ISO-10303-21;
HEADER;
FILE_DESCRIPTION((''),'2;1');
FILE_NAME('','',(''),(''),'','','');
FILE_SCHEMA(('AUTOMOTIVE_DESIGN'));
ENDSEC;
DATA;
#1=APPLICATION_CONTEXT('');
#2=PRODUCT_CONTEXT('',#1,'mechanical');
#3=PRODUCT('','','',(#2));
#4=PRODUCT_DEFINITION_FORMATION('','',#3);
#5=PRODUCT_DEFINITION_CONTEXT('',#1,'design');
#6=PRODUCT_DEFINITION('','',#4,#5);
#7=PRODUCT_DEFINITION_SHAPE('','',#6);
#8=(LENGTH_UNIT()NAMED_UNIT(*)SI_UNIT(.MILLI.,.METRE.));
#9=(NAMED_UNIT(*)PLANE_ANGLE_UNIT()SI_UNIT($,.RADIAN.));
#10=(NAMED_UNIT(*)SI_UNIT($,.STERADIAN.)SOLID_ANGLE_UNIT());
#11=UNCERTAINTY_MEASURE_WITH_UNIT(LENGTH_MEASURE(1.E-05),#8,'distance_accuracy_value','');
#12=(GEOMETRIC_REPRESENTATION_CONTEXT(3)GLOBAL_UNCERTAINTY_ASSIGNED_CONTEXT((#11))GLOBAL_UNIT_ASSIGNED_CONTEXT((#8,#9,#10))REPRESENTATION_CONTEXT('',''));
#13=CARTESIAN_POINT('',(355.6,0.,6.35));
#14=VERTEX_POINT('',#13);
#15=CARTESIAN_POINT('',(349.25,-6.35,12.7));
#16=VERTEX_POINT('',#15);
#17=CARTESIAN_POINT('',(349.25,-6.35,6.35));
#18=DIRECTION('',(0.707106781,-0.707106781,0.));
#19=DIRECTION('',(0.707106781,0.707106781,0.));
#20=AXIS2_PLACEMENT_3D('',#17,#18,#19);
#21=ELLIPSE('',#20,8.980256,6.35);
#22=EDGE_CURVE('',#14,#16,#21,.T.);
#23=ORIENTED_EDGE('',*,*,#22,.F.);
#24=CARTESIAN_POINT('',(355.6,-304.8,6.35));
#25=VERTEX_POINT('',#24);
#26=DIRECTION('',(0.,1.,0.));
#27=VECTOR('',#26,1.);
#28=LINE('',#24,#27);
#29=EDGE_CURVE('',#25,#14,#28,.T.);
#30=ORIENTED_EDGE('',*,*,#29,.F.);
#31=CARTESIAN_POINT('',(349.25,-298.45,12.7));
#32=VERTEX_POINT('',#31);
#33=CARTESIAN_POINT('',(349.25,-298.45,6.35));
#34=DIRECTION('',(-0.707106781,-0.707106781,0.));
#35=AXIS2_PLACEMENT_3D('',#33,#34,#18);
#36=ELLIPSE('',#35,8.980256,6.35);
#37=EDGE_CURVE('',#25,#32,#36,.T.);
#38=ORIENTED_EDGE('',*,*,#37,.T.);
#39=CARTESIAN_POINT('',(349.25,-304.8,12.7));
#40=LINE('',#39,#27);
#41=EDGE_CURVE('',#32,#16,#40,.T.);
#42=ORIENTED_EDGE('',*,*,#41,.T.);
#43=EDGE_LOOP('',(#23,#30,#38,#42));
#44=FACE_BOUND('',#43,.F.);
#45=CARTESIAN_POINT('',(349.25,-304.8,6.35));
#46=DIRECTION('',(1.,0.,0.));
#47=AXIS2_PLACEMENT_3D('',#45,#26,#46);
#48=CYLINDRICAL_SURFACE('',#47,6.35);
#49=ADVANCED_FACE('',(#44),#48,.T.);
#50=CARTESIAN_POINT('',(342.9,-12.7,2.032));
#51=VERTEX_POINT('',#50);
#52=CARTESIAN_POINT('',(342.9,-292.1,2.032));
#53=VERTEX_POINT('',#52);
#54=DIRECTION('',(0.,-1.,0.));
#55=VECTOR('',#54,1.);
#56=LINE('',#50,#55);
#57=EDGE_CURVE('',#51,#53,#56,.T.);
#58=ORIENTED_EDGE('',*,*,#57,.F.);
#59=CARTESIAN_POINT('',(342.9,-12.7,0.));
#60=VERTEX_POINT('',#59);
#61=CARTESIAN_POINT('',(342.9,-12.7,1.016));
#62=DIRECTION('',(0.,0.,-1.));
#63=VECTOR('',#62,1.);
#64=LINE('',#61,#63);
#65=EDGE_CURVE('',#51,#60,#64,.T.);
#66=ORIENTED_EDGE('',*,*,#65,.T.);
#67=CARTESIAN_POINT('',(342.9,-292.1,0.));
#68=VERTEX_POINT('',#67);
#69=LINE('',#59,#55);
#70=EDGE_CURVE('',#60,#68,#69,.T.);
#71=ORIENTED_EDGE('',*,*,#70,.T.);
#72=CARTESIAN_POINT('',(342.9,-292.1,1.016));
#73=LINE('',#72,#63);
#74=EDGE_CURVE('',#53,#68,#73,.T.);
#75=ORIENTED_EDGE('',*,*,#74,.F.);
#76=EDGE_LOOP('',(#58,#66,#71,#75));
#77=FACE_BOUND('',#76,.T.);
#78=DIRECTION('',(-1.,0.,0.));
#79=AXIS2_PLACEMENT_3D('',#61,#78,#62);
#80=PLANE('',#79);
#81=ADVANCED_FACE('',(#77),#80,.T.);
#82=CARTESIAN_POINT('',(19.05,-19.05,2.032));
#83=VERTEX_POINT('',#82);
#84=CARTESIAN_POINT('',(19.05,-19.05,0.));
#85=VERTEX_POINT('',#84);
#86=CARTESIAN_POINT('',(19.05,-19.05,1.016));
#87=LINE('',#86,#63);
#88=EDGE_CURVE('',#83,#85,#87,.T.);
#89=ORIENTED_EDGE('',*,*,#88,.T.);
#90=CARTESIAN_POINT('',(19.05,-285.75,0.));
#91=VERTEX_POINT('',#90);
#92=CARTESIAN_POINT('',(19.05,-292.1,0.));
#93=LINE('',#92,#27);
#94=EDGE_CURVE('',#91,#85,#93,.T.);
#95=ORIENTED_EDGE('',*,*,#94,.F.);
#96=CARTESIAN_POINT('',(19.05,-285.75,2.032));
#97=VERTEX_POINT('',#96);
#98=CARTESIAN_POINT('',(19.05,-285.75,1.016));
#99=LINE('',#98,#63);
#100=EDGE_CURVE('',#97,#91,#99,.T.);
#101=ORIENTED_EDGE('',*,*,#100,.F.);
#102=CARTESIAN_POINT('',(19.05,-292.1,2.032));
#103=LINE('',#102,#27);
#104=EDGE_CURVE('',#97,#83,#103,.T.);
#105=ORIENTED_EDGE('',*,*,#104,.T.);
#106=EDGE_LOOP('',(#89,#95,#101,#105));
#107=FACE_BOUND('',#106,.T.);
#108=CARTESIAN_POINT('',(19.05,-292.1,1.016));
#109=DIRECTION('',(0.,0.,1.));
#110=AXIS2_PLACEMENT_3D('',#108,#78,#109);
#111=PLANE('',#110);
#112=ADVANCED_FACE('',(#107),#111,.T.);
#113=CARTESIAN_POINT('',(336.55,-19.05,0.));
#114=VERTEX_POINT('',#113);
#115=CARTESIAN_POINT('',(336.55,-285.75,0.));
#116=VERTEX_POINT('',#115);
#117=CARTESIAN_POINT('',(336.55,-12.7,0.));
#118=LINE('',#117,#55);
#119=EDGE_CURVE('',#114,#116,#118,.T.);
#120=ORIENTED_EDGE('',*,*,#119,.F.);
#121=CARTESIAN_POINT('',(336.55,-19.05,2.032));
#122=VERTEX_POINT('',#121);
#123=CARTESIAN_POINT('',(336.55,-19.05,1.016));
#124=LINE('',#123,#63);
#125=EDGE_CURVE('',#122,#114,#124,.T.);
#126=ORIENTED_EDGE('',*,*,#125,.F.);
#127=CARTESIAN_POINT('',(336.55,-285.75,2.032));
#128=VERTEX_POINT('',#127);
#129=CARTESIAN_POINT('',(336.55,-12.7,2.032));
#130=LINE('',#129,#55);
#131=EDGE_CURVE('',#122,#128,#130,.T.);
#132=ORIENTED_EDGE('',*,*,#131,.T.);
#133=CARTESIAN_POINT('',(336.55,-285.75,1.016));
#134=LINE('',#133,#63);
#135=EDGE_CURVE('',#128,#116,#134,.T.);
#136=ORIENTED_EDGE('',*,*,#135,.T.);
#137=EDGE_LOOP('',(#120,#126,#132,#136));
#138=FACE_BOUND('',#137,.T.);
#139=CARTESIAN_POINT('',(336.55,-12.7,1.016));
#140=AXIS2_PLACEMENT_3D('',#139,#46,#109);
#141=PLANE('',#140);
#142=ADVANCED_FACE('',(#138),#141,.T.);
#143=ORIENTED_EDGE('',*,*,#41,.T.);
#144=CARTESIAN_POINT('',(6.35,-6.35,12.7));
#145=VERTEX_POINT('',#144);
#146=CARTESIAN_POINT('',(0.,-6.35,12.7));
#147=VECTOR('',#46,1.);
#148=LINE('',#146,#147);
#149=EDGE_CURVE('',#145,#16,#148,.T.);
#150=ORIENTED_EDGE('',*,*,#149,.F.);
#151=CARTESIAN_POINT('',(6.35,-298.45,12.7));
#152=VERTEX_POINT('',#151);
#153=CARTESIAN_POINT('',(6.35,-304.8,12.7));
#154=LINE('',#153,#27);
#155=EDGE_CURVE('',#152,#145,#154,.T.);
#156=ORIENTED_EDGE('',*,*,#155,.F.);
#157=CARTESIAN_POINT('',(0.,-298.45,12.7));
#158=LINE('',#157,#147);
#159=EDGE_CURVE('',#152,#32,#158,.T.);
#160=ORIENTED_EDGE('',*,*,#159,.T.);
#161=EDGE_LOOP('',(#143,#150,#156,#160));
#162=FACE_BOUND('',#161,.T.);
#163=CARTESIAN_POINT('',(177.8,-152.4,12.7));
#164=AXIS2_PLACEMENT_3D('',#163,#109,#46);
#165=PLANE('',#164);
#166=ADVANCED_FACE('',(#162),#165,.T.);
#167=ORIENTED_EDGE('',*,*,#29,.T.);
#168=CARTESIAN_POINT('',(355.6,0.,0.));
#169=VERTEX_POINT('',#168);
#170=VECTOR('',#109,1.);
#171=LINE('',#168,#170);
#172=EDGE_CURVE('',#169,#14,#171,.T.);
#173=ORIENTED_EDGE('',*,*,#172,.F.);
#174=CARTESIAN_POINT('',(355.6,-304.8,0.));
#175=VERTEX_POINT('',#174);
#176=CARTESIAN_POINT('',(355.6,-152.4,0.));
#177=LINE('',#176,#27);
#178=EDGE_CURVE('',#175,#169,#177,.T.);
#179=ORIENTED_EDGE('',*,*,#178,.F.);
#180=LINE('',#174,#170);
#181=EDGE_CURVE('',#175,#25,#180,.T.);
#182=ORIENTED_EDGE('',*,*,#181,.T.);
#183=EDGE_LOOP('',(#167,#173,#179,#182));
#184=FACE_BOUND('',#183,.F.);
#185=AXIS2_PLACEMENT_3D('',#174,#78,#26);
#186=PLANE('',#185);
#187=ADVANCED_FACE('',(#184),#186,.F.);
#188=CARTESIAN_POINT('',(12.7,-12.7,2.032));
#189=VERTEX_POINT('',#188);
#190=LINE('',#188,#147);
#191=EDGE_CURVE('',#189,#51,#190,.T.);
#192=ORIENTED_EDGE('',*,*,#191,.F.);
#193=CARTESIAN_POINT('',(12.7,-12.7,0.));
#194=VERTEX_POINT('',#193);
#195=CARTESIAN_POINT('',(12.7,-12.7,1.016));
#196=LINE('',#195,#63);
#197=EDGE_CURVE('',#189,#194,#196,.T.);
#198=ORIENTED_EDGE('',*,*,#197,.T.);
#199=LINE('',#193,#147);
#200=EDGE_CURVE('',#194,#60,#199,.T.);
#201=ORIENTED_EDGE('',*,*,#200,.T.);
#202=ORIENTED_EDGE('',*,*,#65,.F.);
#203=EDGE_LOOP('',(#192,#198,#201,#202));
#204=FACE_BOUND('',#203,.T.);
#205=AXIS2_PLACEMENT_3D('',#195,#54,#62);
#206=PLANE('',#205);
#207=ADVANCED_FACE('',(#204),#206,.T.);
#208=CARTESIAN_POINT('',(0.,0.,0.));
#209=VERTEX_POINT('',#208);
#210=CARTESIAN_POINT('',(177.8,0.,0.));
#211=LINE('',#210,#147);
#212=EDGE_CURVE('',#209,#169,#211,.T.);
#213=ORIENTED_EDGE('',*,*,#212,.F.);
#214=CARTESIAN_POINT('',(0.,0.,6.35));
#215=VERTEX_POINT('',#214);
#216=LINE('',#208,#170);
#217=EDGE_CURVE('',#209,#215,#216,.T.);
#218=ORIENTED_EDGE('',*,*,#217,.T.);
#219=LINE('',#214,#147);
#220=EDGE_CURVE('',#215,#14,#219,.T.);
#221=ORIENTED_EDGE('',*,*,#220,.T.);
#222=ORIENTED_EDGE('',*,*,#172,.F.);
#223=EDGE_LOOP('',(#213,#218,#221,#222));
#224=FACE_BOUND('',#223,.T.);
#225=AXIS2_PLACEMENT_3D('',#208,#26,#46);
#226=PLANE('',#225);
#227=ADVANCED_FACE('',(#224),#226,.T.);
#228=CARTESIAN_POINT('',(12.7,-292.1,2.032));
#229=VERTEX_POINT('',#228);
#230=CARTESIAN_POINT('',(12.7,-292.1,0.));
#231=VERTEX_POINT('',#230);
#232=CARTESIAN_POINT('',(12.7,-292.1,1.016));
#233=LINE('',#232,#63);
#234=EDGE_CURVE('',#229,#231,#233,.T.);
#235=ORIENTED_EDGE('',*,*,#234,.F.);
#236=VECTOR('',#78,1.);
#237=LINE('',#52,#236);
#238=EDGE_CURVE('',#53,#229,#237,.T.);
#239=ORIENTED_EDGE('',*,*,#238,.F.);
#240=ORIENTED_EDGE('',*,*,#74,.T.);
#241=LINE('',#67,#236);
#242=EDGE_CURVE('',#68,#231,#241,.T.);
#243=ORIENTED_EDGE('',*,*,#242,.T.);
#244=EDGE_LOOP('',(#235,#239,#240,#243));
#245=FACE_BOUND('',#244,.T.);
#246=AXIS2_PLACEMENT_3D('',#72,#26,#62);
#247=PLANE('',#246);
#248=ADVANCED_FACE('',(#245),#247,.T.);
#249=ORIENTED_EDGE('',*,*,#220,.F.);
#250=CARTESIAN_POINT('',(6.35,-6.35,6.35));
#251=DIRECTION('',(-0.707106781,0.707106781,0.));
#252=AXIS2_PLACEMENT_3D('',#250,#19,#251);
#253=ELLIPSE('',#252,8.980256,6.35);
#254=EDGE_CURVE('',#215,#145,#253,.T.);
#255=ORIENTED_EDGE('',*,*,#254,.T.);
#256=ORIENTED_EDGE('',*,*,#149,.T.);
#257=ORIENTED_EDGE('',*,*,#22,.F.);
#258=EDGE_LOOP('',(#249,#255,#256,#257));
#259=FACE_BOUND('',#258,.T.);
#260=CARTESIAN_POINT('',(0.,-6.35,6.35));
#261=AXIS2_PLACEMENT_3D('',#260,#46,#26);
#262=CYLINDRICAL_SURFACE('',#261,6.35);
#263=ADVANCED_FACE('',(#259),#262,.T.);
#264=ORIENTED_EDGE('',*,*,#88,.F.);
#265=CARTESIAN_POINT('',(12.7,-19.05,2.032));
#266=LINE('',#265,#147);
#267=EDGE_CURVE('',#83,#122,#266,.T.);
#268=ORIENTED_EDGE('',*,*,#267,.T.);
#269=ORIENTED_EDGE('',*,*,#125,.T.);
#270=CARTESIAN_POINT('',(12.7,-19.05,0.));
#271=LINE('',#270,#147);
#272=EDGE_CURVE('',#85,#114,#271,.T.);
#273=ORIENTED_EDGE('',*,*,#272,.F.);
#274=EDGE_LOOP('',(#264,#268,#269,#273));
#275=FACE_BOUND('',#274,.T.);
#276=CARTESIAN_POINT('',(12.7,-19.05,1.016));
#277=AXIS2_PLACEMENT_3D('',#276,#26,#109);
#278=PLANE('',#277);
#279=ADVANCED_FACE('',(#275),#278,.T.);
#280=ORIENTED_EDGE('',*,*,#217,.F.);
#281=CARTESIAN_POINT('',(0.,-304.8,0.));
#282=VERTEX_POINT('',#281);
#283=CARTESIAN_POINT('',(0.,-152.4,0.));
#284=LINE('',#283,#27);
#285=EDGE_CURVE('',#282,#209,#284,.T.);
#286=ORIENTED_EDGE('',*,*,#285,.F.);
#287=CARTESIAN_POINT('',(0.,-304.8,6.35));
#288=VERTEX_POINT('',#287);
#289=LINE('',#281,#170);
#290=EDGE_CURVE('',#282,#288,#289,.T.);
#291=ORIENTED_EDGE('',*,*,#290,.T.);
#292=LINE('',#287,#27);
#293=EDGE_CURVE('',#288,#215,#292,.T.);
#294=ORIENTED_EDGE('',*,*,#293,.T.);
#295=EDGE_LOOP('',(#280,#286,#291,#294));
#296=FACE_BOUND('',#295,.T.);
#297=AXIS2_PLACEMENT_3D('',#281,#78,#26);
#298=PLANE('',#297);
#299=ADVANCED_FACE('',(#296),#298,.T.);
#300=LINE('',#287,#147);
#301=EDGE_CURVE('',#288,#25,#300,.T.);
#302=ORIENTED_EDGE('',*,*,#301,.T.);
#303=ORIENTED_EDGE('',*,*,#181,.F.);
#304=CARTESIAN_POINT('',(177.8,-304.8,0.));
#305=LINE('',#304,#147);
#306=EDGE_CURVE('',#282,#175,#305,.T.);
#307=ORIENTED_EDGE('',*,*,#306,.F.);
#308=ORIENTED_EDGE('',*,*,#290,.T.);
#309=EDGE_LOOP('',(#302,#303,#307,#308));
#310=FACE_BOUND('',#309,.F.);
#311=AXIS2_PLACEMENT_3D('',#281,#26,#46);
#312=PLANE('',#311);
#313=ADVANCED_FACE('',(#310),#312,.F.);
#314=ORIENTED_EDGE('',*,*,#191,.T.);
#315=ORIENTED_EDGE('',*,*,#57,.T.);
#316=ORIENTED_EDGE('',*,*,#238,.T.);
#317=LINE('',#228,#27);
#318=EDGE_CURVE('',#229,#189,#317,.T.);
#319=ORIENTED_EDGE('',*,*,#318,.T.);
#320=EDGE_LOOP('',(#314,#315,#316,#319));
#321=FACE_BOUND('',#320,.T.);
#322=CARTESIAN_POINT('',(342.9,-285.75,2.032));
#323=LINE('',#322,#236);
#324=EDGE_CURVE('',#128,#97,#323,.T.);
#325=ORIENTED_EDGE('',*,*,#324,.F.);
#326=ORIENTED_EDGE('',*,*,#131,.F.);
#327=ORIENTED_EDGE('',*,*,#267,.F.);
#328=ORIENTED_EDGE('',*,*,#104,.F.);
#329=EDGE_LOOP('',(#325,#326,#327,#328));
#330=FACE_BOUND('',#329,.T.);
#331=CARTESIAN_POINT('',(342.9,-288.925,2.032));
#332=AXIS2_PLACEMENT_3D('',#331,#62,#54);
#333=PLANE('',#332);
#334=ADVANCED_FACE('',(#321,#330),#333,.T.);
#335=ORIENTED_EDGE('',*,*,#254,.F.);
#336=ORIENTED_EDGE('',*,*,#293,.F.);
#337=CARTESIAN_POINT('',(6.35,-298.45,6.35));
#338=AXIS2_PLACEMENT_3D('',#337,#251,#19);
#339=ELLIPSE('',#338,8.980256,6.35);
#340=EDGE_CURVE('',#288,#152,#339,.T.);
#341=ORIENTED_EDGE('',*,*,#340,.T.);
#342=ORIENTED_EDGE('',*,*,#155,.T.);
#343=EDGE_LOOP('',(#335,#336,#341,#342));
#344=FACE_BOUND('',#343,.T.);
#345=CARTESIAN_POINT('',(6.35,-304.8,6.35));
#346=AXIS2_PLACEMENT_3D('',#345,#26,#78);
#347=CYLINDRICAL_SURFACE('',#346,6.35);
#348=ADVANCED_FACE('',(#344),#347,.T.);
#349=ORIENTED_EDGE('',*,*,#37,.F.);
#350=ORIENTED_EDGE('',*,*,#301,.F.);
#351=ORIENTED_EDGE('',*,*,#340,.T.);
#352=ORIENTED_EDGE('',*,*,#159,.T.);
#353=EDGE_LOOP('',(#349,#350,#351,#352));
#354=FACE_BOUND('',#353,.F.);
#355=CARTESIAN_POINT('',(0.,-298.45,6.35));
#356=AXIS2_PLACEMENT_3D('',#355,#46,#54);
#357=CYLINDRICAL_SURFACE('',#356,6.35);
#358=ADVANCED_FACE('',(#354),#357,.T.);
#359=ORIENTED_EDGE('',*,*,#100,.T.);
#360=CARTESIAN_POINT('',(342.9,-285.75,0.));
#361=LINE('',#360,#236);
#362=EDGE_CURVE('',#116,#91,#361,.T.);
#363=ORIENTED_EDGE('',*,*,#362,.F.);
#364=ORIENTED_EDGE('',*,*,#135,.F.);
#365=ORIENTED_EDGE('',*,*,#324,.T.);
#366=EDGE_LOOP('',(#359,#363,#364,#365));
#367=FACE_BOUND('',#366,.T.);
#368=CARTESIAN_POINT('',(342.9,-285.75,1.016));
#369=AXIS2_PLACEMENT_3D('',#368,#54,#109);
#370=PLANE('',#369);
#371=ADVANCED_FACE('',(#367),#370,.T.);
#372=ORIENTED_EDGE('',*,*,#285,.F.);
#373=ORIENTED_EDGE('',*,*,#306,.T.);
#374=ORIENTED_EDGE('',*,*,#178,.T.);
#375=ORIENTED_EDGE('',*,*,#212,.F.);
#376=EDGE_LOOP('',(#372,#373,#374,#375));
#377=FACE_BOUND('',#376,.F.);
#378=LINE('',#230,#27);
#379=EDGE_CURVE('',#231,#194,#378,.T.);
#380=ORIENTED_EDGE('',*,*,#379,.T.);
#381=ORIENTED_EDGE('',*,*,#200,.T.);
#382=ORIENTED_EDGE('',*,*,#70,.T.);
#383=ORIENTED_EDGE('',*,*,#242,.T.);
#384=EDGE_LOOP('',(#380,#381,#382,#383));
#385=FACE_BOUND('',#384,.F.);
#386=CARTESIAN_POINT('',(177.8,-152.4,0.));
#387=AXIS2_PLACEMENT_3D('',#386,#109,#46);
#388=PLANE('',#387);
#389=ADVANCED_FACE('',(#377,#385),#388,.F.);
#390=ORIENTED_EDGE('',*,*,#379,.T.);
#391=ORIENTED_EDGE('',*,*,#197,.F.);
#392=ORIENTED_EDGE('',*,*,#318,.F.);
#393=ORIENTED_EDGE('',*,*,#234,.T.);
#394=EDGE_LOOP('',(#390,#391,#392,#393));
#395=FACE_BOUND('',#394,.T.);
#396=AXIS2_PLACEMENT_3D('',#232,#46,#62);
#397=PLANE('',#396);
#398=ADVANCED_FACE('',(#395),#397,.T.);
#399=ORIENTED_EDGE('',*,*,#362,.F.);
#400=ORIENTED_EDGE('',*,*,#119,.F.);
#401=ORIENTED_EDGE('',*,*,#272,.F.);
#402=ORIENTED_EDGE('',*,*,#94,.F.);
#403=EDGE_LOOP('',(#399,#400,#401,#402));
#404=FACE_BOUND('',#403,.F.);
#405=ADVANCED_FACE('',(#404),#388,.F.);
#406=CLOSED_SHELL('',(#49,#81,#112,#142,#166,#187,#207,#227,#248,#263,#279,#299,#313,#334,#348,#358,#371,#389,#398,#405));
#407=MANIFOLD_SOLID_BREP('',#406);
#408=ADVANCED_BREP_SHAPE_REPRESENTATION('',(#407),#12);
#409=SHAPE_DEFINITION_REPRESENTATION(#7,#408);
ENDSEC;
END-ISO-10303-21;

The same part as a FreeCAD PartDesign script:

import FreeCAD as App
import Part
import Sketcher
Q = App.Units.Quantity


def edges_at(feature, points):
    """Names of the edges that pass closest to the given points."""
    edges = feature.Shape.Edges
    near = lambda p: min(range(len(edges)), key=lambda i: edges[i].distToShape(Part.Vertex(*p))[0])
    return sorted({f"Edge{near(p) + 1}" for p in points})


def add_polygon(sketch, points):
    """Adds a closed chain of lines whose ends are joined by coincident constraints."""
    first, n = sketch.GeometryCount, len(points)
    for a, b in zip(points, points[1:] + points[:1]):
        sketch.addGeometry(Part.LineSegment(App.Vector(*a, 0), App.Vector(*b, 0)), False)
    for i in range(n):
        sketch.addConstraint(Sketcher.Constraint("Coincident", first + i, 2, first + (i + 1) % n, 1))

doc = App.newDocument("Part")
params = doc.addObject("Spreadsheet::Sheet", "Params")
for row, (alias, value) in enumerate([
    ("sketch1_width", "14 in"),
    ("sketch1_height", "12 in"),
    ("pad1_length", "0.5 in"),
    ("fillet_radius", "0.25 in"),
    ("sketch2_width", "0.25 in"),
    ("sketch2_height", "0.08 in"),
    ("sketch3_width", "13 in"),
    ("sketch3_height", "11 in"),
], start=1):
    params.set(f"A{row}", alias)
    params.set(f"B{row}", "=" + value)
    params.setAlias(f"B{row}", alias)

body = doc.addObject("PartDesign::Body", "Body")

sketch1 = doc.addObject("Sketcher::SketchObject", "Sketch")
body.addObject(sketch1)
sketch1.AttachmentSupport = (doc.XY_Plane, [""])
sketch1.MapMode = "FlatFace"
add_polygon(sketch1, [(0, 0), (0, -304.8), (355.6, -304.8), (355.6, 0)])
sketch1.addConstraint([
    Sketcher.Constraint("Vertical", 0),
    Sketcher.Constraint("Horizontal", 1),
    Sketcher.Constraint("Vertical", 2),
    Sketcher.Constraint("Horizontal", 3),
    Sketcher.Constraint("Coincident", 3, 2, -1, 1),
    Sketcher.Constraint("DistanceX", 1, 1, 1, 2, Q("14 in")),
    Sketcher.Constraint("DistanceY", 0, 2, 0, 1, Q("12 in")),
])
sketch1.setExpression("Constraints[9]", "Params.sketch1_width")
sketch1.setExpression("Constraints[10]", "Params.sketch1_height")
pad1 = doc.addObject("PartDesign::Pad", "Pad")
body.addObject(pad1)
pad1.Profile = sketch1
pad1.setExpression("Length", "Params.pad1_length")
doc.recompute()

fillet = doc.addObject("PartDesign::Fillet", "Fillet")
body.addObject(fillet)
fillet.Base = (pad1, edges_at(pad1, [
    (0, -152.4, 12.7),
    (177.8, -304.8, 12.7),
    (355.6, -152.4, 12.7),
    (177.8, 0, 12.7),
]))
fillet.setExpression("Radius", "Params.fillet_radius")

sketch2 = doc.addObject("Sketcher::SketchObject", "Sketch001")
body.addObject(sketch2)
sketch2.AttachmentSupport = (doc.XZ_Plane, [""])
sketch2.MapMode = "FlatFace"
sketch2.AttachmentOffset = App.Placement(App.Vector(0, 0, 0.5 * 25.4), App.Rotation())
add_polygon(sketch2, [(12.7, 2.032), (12.7, 0), (19.05, 0), (19.05, 2.032)])
sketch2.addConstraint([
    Sketcher.Constraint("Vertical", 0),
    Sketcher.Constraint("Horizontal", 1),
    Sketcher.Constraint("Vertical", 2),
    Sketcher.Constraint("Horizontal", 3),
    Sketcher.Constraint("PointOnObject", 0, 2, -1),
    Sketcher.Constraint("DistanceX", 1, 1, 1, 2, Q("0.25 in")),
    Sketcher.Constraint("DistanceY", 0, 2, 0, 1, Q("0.08 in")),
    Sketcher.Constraint("DistanceX", -1, 1, 0, 2, Q("0.5 in")),
])
sketch2.setExpression("Constraints[9]", "Params.sketch2_width")
sketch2.setExpression("Constraints[10]", "Params.sketch2_height")

sketch3 = doc.addObject("Sketcher::SketchObject", "Sketch002")
body.addObject(sketch3)
sketch3.AttachmentSupport = (doc.XY_Plane, [""])
sketch3.MapMode = "FlatFace"
add_polygon(sketch3, [(12.7, -292.1), (12.7, -12.7), (342.9, -12.7), (342.9, -292.1)])
sketch3.addConstraint([
    Sketcher.Constraint("Vertical", 0),
    Sketcher.Constraint("Horizontal", 1),
    Sketcher.Constraint("Vertical", 2),
    Sketcher.Constraint("Horizontal", 3),
    Sketcher.Constraint("DistanceX", 1, 1, 1, 2, Q("13 in")),
    Sketcher.Constraint("DistanceY", 0, 1, 0, 2, Q("11 in")),
    Sketcher.Constraint("DistanceX", -1, 1, 0, 2, Q("0.5 in")),
    Sketcher.Constraint("DistanceY", 0, 2, -1, 1, Q("0.5 in")),
])
sketch3.setExpression("Constraints[8]", "Params.sketch3_width")
sketch3.setExpression("Constraints[9]", "Params.sketch3_height")
doc.recompute()

subtractivepipe = doc.addObject("PartDesign::SubtractivePipe", "SubtractivePipe")
body.addObject(subtractivepipe)
subtractivepipe.Profile = sketch2
subtractivepipe.Spine = (sketch3, ["Edge1", "Edge2", "Edge3", "Edge4"])
subtractivepipe.Transition = "Right corner"

doc.recompute()
